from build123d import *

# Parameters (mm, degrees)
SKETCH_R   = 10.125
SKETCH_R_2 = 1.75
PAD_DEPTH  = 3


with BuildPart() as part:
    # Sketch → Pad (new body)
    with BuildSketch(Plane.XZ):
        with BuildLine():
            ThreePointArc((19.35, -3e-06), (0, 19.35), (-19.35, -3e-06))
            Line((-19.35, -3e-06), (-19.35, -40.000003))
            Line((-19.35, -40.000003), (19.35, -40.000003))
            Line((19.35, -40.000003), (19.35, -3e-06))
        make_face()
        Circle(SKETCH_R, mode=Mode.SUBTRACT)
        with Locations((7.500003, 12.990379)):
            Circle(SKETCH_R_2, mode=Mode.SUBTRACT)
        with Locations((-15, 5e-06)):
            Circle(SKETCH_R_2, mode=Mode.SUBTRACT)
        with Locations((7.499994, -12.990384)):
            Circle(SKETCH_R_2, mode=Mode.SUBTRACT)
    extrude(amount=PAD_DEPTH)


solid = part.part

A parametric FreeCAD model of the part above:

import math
import FreeCAD as App
import Part
import Sketcher
Q = App.Units.Quantity

doc = App.newDocument("Part")
params = doc.addObject("Spreadsheet::Sheet", "Params")
for row, (alias, value) in enumerate([
    ("sketch1_diameter", "3.5 mm"),
    ("sketch1_diameter2", "20.25 mm"),
    ("sketch1_height", "40 mm"),
    ("sketch1_radius", "19.35 mm"),
    ("pad1_length", "3 mm"),
], start=1):
    params.set(f"A{row}", alias)
    params.set(f"B{row}", "=" + value)
    params.setAlias(f"B{row}", alias)

body = doc.addObject("PartDesign::Body", "Body")

sketch1 = body.newObject("Sketcher::SketchObject", "Sketch")
sketch1.AttachmentSupport = (doc.getObject("XZ_Plane"), [""])
sketch1.MapMode = "FlatFace"
sketch1.addGeometry(Part.ArcOfCircle(Part.Circle(App.Vector(0, 0, 0), App.Vector(0, 0, 1), 19.4), math.radians(0), math.radians(180)), False)
sketch1.addGeometry(Part.LineSegment(App.Vector(-19.4, 0, 0), App.Vector(-19.4, -40, 0)), False)
sketch1.addGeometry(Part.LineSegment(App.Vector(-19.4, -40, 0), App.Vector(19.4, -40, 0)), False)
sketch1.addGeometry(Part.LineSegment(App.Vector(19.4, -40, 0), App.Vector(19.4, 0, 0)), False)
sketch1.addGeometry(Part.Circle(App.Vector(7.5, -13, 0), App.Vector(0, 0, 1), 1.8), False)
sketch1.addGeometry(Part.Circle(App.Vector(-15, 0, 0), App.Vector(0, 0, 1), 1.8), False)
sketch1.addGeometry(Part.Circle(App.Vector(0, 0, 0), App.Vector(0, 0, 1), 10.1), False)
sketch1.addGeometry(Part.Circle(App.Vector(7.5, 13, 0), App.Vector(0, 0, 1), 1.8), False)
sketch1.addConstraint(Sketcher.Constraint("Tangent", 0, 2, 1, 1))
sketch1.addConstraint(Sketcher.Constraint("Coincident", 1, 2, 2, 1))
sketch1.addConstraint(Sketcher.Constraint("Coincident", 2, 2, 3, 1))
sketch1.addConstraint(Sketcher.Constraint("Tangent", 3, 2, 0, 1))
sketch1.addConstraint(Sketcher.Constraint("Vertical", 1))
sketch1.addConstraint(Sketcher.Constraint("Horizontal", 2))
sketch1.addConstraint(Sketcher.Constraint("Vertical", 3))
sketch1.addConstraint(Sketcher.Constraint("Coincident", 0, 3, -1, 1))
sketch1.addConstraint(Sketcher.Constraint("Coincident", 6, 3, -1, 1))
sketch1.addConstraint(Sketcher.Constraint("Equal", 4, 5))
sketch1.addConstraint(Sketcher.Constraint("Equal", 5, 7))
sketch1.addConstraint(Sketcher.Constraint("Diameter", 4, Q("3.5 mm")))
sketch1.addConstraint(Sketcher.Constraint("Diameter", 6, Q("20.25 mm")))
sketch1.addConstraint(Sketcher.Constraint("DistanceY", 1, 2, 1, 1, Q("40 mm")))
sketch1.addConstraint(Sketcher.Constraint("Radius", 0, Q("19.35 mm")))
sketch1.addConstraint(Sketcher.Constraint("DistanceX", 5, 3, -1, 1, Q("15 mm")))
sketch1.addConstraint(Sketcher.Constraint("DistanceY", -1, 1, 7, 3, Q("12.990379 mm")))
sketch1.addConstraint(Sketcher.Constraint("DistanceY", 4, 3, 5, 3, Q("12.990389 mm")))
sketch1.addConstraint(Sketcher.Constraint("DistanceY", 4, 3, 0, 2, Q("12.990381 mm")))
sketch1.addConstraint(Sketcher.Constraint("DistanceX", -1, 1, 4, 3, Q("7.499994 mm")))
sketch1.addConstraint(Sketcher.Constraint("DistanceX", -1, 1, 7, 3, Q("7.500003 mm")))
sketch1.setExpression("Constraints[11]", "Params.sketch1_diameter")
sketch1.setExpression("Constraints[12]", "Params.sketch1_diameter2")
sketch1.setExpression("Constraints[13]", "Params.sketch1_height")
sketch1.setExpression("Constraints[14]", "Params.sketch1_radius")
pad1 = body.newObject("PartDesign::Pad", "Pad")
pad1.Profile = sketch1
pad1.setExpression("Length", "Params.pad1_length")

doc.recompute()
